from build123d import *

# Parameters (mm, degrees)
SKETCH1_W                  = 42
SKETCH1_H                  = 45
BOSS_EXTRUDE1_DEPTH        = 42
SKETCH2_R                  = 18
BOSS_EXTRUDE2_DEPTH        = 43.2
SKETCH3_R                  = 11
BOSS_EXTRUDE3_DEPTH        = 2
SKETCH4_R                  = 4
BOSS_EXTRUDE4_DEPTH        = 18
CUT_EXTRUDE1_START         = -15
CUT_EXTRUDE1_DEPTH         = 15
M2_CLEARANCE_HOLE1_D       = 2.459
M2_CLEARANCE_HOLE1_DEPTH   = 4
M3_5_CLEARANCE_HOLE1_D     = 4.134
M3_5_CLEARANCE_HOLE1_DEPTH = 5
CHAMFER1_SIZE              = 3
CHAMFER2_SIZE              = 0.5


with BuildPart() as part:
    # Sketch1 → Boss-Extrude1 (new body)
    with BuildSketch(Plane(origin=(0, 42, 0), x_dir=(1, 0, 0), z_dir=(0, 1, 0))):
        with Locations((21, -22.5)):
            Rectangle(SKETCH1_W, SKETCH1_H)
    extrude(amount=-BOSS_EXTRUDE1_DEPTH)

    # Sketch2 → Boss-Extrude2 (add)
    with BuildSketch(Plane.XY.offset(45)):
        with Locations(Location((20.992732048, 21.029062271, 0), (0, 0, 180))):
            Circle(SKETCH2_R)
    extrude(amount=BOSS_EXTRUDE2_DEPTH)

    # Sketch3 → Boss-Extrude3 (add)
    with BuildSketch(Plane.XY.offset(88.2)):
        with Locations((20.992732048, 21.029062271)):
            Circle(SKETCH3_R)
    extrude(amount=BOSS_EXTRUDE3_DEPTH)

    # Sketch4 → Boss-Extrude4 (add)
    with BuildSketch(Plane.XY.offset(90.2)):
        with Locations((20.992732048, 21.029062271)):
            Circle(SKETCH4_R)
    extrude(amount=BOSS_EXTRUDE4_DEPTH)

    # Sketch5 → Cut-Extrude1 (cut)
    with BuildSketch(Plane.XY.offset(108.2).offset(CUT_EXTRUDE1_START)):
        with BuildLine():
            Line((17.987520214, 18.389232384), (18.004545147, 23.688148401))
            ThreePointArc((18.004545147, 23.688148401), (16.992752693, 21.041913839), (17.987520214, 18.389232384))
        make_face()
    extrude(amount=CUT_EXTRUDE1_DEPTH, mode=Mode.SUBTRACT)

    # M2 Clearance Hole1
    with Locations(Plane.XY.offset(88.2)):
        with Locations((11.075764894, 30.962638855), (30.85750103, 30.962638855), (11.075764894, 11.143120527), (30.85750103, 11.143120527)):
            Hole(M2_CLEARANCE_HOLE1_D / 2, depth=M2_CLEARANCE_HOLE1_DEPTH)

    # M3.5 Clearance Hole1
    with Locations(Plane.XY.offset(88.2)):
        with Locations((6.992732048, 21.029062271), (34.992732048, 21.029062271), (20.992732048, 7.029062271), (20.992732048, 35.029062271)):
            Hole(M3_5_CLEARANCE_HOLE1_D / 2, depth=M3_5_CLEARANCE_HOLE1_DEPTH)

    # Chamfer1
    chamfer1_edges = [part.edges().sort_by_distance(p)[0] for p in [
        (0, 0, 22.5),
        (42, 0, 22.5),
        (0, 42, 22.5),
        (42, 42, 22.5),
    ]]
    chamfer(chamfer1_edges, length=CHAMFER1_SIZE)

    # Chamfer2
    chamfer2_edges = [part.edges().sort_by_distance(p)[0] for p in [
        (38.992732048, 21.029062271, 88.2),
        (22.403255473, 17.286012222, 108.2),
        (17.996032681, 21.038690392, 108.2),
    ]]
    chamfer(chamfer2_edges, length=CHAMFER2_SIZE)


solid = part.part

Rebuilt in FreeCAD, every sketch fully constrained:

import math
import FreeCAD as App
import Part
import Sketcher
from FreeCAD import Vector


def edges_at(feature, points):
    """Names of the edges that pass closest to the given points."""
    edges = feature.Shape.Edges
    near = lambda p: min(range(len(edges)), key=lambda i: edges[i].distToShape(Part.Vertex(*p))[0])
    return sorted({f"Edge{near(p) + 1}" for p in points})

doc = App.newDocument("Part")
body = doc.addObject("PartDesign::Body", "Body")

# Sketch on XZ plane
sketch1 = body.newObject("Sketcher::SketchObject", "Sketch")
sketch1.AttachmentSupport = (doc.getObject("XZ_Plane"), [""])
sketch1.MapMode = "FlatFace"
sketch1.AttachmentOffset = App.Placement(Vector(0, 0, -42), App.Rotation())
sketch1.addGeometry([
    Part.LineSegment(Vector(0, 0, 0), Vector(0, 45, 0)),
    Part.LineSegment(Vector(0, 45, 0), Vector(42, 45, 0)),
    Part.LineSegment(Vector(42, 45, 0), Vector(42, 0, 0)),
    Part.LineSegment(Vector(42, 0, 0), Vector(0, 0, 0)),
], False)
sketch1.addConstraint([
    Sketcher.Constraint("Coincident", 0, 2, 1, 1),
    Sketcher.Constraint("Coincident", 1, 2, 2, 1),
    Sketcher.Constraint("Coincident", 2, 2, 3, 1),
    Sketcher.Constraint("Coincident", 3, 2, 0, 1),
    Sketcher.Constraint("Vertical", 0),
    Sketcher.Constraint("Horizontal", 1),
    Sketcher.Constraint("Vertical", 2),
    Sketcher.Constraint("Horizontal", 3),
    Sketcher.Constraint("Coincident", 3, 2, -1, 1),
    Sketcher.Constraint("DistanceX", 1, 1, 1, 2, 42.0),
    Sketcher.Constraint("DistanceY", 0, 1, 0, 2, 45.0),
])
pad1 = body.newObject("PartDesign::Pad", "Pad")
pad1.Profile = sketch1
pad1.Length = 42

# Sketch on XY plane
sketch2 = body.newObject("Sketcher::SketchObject", "Sketch001")
sketch2.AttachmentSupport = (doc.getObject("XY_Plane"), [""])
sketch2.MapMode = "FlatFace"
sketch2.AttachmentOffset = App.Placement(Vector(0, 0, 45), App.Rotation())
sketch2.addGeometry(Part.Circle(Vector(20.992732, 21.029062, 0), Vector(0, 0, 1), 18), False)
sketch2.addConstraint([
    Sketcher.Constraint("Diameter", 0, 36.0),
    Sketcher.Constraint("DistanceX", -1, 1, 0, 3, 20.992732),
    Sketcher.Constraint("DistanceY", -1, 1, 0, 3, 21.029062),
])
pad2 = body.newObject("PartDesign::Pad", "Pad001")
pad2.Profile = sketch2
pad2.Length = 43.2

# Sketch on XY plane
sketch3 = body.newObject("Sketcher::SketchObject", "Sketch002")
sketch3.AttachmentSupport = (doc.getObject("XY_Plane"), [""])
sketch3.MapMode = "FlatFace"
sketch3.AttachmentOffset = App.Placement(Vector(0, 0, 88.2), App.Rotation())
sketch3.addGeometry(Part.Circle(Vector(20.992732, 21.029062, 0), Vector(0, 0, 1), 11), False)
sketch3.addConstraint([
    Sketcher.Constraint("Diameter", 0, 22.0),
    Sketcher.Constraint("DistanceX", -1, 1, 0, 3, 20.992732),
    Sketcher.Constraint("DistanceY", -1, 1, 0, 3, 21.029062),
])
pad3 = body.newObject("PartDesign::Pad", "Pad002")
pad3.Profile = sketch3
pad3.Length = 2

# Sketch on XY plane
sketch4 = body.newObject("Sketcher::SketchObject", "Sketch003")
sketch4.AttachmentSupport = (doc.getObject("XY_Plane"), [""])
sketch4.MapMode = "FlatFace"
sketch4.AttachmentOffset = App.Placement(Vector(0, 0, 90.2), App.Rotation())
sketch4.addGeometry(Part.Circle(Vector(20.992732, 21.029062, 0), Vector(0, 0, 1), 4), False)
sketch4.addConstraint([
    Sketcher.Constraint("Diameter", 0, 8.0),
    Sketcher.Constraint("DistanceX", -1, 1, 0, 3, 20.992732),
    Sketcher.Constraint("DistanceY", -1, 1, 0, 3, 21.029062),
])
pad4 = body.newObject("PartDesign::Pad", "Pad003")
pad4.Profile = sketch4
pad4.Length = 18

# Sketch on XY plane
sketch5 = body.newObject("Sketcher::SketchObject", "Sketch004")
sketch5.AttachmentSupport = (doc.getObject("XY_Plane"), [""])
sketch5.MapMode = "FlatFace"
sketch5.AttachmentOffset = App.Placement(Vector(0, 0, 93.2), App.Rotation())
sketch5.addGeometry([
    Part.LineSegment(Vector(17.98752, 18.389232, 0), Vector(18.004545, 23.688148, 0)),
    Part.ArcOfCircle(Part.Circle(Vector(20.992732, 21.029062, 0), Vector(0, 0, 1), 4), math.radians(138.3352), math.radians(221.296629)),
], False)
sketch5.addConstraint([
    Sketcher.Constraint("Coincident", 0, 1, 1, 2),
    Sketcher.Constraint("Coincident", 1, 1, 0, 2),
    Sketcher.Constraint("Radius", 1, 4.0),
    Sketcher.Constraint("DistanceX", -1, 1, 0, 1, 17.98752),
    Sketcher.Constraint("DistanceY", -1, 1, 1, 1, 23.688148),
    Sketcher.Constraint("DistanceX", 0, 1, 1, 3, 3.005212),
    Sketcher.Constraint("Distance", 0, 5.298943),
])
pocket1 = body.newObject("PartDesign::Pocket", "Pocket")
pocket1.Profile = sketch5
pocket1.Length = 15
pocket1.Reversed = True

# Sketch on XY plane
sketch6 = body.newObject("Sketcher::SketchObject", "Sketch005")
sketch6.AttachmentSupport = (doc.getObject("XY_Plane"), [""])
sketch6.MapMode = "FlatFace"
sketch6.AttachmentOffset = App.Placement(Vector(0, 0, 88.2), App.Rotation())
sketch6.addGeometry([
    Part.Circle(Vector(11.075765, 30.962639, 0), Vector(0, 0, 1), 1.2295),
    Part.Circle(Vector(30.857501, 30.962639, 0), Vector(0, 0, 1), 1.2295),
    Part.Circle(Vector(11.075765, 11.143121, 0), Vector(0, 0, 1), 1.2295),
    Part.Circle(Vector(30.857501, 11.143121, 0), Vector(0, 0, 1), 1.2295),
], False)
sketch6.addConstraint([
    Sketcher.Constraint("Equal", 0, 1),
    Sketcher.Constraint("Equal", 1, 2),
    Sketcher.Constraint("Equal", 2, 3),
    Sketcher.Constraint("Horizontal", 0, 3, 1, 3),
    Sketcher.Constraint("Horizontal", 2, 3, 3, 3),
    Sketcher.Constraint("Vertical", 0, 3, 2, 3),
    Sketcher.Constraint("Vertical", 1, 3, 3, 3),
    Sketcher.Constraint("Diameter", 0, 2.459),
    Sketcher.Constraint("DistanceX", -1, 1, 1, 3, 30.857501),
    Sketcher.Constraint("DistanceY", -1, 1, 0, 3, 30.962639),
    Sketcher.Constraint("DistanceY", -1, 1, 2, 3, 11.143121),
    Sketcher.Constraint("DistanceX", -1, 1, 0, 3, 11.075765),
])
doc.recompute()
hole = body.newObject("PartDesign::Hole", "Hole")
hole.Profile = sketch6
hole.ThreadType = "None"
hole.Diameter = 2.459
hole.DepthType = "Dimension"
hole.Depth = 4
hole.DrillPoint = "Flat"

# Sketch on XY plane
sketch7 = body.newObject("Sketcher::SketchObject", "Sketch006")
sketch7.AttachmentSupport = (doc.getObject("XY_Plane"), [""])
sketch7.MapMode = "FlatFace"
sketch7.AttachmentOffset = App.Placement(Vector(0, 0, 88.2), App.Rotation())
sketch7.addGeometry([
    Part.Circle(Vector(6.992732, 21.029062, 0), Vector(0, 0, 1), 2.067),
    Part.Circle(Vector(34.992732, 21.029062, 0), Vector(0, 0, 1), 2.067),
    Part.Circle(Vector(20.992732, 7.029062, 0), Vector(0, 0, 1), 2.067),
    Part.Circle(Vector(20.992732, 35.029062, 0), Vector(0, 0, 1), 2.067),
], False)
sketch7.addConstraint([
    Sketcher.Constraint("Equal", 0, 1),
    Sketcher.Constraint("Equal", 1, 2),
    Sketcher.Constraint("Equal", 2, 3),
    Sketcher.Constraint("Horizontal", 0, 3, 1, 3),
    Sketcher.Constraint("Vertical", 2, 3, 3, 3),
    Sketcher.Constraint("Diameter", 0, 4.134),
    Sketcher.Constraint("DistanceX", 0, 3, 1, 3, 28.0),
    Sketcher.Constraint("DistanceX", 0, 3, 2, 3, 14.0),
    Sketcher.Constraint("DistanceY", 2, 3, 0, 3, 14.0),
    Sketcher.Constraint("DistanceY", 0, 3, 3, 3, 14.0),
    Sketcher.Constraint("DistanceX", -1, 1, 0, 3, 6.992732),
    Sketcher.Constraint("DistanceY", -1, 1, 0, 3, 21.029062),
])
doc.recompute()
hole2 = body.newObject("PartDesign::Hole", "Hole001")
hole2.Profile = sketch7
hole2.ThreadType = "None"
hole2.Diameter = 4.134
hole2.DepthType = "Dimension"
hole2.Depth = 5
hole2.DrillPoint = "Flat"
doc.recompute()

chamfer = body.newObject("PartDesign::Chamfer", "Chamfer")
chamfer.Base = (hole2, edges_at(hole2, [
    (0, 0, 22.5),
    (42, 0, 22.5),
    (0, 42, 22.5),
    (42, 42, 22.5),
]))
chamfer.Size = 3
doc.recompute()

chamfer2 = body.newObject("PartDesign::Chamfer", "Chamfer001")
chamfer2.Base = (chamfer, edges_at(chamfer, [(38.993, 21.029, 88.2), (22.403, 17.286, 108.2), (17.996, 21.039, 108.2)]))
chamfer2.Size = 0.5

doc.recompute()
